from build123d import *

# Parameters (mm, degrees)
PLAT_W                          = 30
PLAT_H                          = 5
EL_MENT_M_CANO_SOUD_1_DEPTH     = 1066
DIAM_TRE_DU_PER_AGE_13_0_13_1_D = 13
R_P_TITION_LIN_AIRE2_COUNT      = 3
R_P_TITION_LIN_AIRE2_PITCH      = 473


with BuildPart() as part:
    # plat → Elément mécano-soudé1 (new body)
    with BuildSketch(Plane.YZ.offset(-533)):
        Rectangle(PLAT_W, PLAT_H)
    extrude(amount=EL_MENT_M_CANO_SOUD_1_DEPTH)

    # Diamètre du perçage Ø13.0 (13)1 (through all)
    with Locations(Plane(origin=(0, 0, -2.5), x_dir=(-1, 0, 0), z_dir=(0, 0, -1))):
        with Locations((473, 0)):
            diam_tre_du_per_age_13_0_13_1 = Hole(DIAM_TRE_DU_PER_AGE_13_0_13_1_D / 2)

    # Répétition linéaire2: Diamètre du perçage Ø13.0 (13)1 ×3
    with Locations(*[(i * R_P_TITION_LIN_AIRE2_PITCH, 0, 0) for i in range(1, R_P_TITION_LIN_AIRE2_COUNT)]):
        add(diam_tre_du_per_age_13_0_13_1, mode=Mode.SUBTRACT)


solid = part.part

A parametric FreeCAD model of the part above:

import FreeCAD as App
import Part
import Sketcher

V = App.Vector

doc = App.newDocument("Part")
body = doc.addObject("PartDesign::Body", "Body")

# Sketch on YZ plane
sketch1 = body.newObject("Sketcher::SketchObject", "Sketch")
sketch1.AttachmentSupport = (doc.getObject("YZ_Plane"), [""])
sketch1.MapMode = "FlatFace"
sketch1.AttachmentOffset = App.Placement(V(0, 0, -533), App.Rotation())
sketch1.addGeometry(Part.LineSegment(V(-15, 2.5, 0), V(-15, -2.5, 0)), False)
sketch1.addGeometry(Part.LineSegment(V(-15, -2.5, 0), V(15, -2.5, 0)), False)
sketch1.addGeometry(Part.LineSegment(V(15, -2.5, 0), V(15, 2.5, 0)), False)
sketch1.addGeometry(Part.LineSegment(V(15, 2.5, 0), V(-15, 2.5, 0)), False)
sketch1.addConstraint(Sketcher.Constraint("Coincident", 0, 2, 1, 1))
sketch1.addConstraint(Sketcher.Constraint("Coincident", 1, 2, 2, 1))
sketch1.addConstraint(Sketcher.Constraint("Coincident", 2, 2, 3, 1))
sketch1.addConstraint(Sketcher.Constraint("Coincident", 3, 2, 0, 1))
sketch1.addConstraint(Sketcher.Constraint("Vertical", 0))
sketch1.addConstraint(Sketcher.Constraint("Horizontal", 1))
sketch1.addConstraint(Sketcher.Constraint("Vertical", 2))
sketch1.addConstraint(Sketcher.Constraint("Horizontal", 3))
sketch1.addConstraint(Sketcher.Constraint("Symmetric", 0, 2, 2, 2, -1, 1))
sketch1.addConstraint(Sketcher.Constraint("DistanceX", 1, 1, 1, 2, 30.0))
sketch1.addConstraint(Sketcher.Constraint("DistanceY", 0, 2, 0, 1, 5.0))
pad1 = body.newObject("PartDesign::Pad", "Pad")
pad1.Profile = sketch1
pad1.Length = 1066

# Sketch on XY plane
sketch2 = body.newObject("Sketcher::SketchObject", "Sketch001")
sketch2.AttachmentSupport = (doc.getObject("XY_Plane"), [""])
sketch2.MapMode = "FlatFace"
sketch2.AttachmentOffset = App.Placement(V(0, 0, -2.5), App.Rotation())
sketch2.addGeometry(Part.Circle(V(-473, 0, 0), V(0, 0, 1), 6.5), False)
sketch2.addConstraint(Sketcher.Constraint("PointOnObject", 0, 3, -1))
sketch2.addConstraint(Sketcher.Constraint("Diameter", 0, 13.0))
sketch2.addConstraint(Sketcher.Constraint("DistanceX", 0, 3, -1, 1, 473.0))
doc.recompute()
hole = body.newObject("PartDesign::Hole", "Hole")
hole.Profile = sketch2
hole.ThreadType = "None"
hole.Diameter = 13
hole.DepthType = "ThroughAll"
hole.Reversed = True
doc.recompute()

linearpattern = body.newObject("PartDesign::LinearPattern", "LinearPattern")
linearpattern.Originals = [hole]
linearpattern.Direction = (doc.getObject("X_Axis"), [""])
linearpattern.Mode = "offset"
linearpattern.Offset = 473
linearpattern.Occurrences = 3
body.Tip = linearpattern

doc.recompute()
